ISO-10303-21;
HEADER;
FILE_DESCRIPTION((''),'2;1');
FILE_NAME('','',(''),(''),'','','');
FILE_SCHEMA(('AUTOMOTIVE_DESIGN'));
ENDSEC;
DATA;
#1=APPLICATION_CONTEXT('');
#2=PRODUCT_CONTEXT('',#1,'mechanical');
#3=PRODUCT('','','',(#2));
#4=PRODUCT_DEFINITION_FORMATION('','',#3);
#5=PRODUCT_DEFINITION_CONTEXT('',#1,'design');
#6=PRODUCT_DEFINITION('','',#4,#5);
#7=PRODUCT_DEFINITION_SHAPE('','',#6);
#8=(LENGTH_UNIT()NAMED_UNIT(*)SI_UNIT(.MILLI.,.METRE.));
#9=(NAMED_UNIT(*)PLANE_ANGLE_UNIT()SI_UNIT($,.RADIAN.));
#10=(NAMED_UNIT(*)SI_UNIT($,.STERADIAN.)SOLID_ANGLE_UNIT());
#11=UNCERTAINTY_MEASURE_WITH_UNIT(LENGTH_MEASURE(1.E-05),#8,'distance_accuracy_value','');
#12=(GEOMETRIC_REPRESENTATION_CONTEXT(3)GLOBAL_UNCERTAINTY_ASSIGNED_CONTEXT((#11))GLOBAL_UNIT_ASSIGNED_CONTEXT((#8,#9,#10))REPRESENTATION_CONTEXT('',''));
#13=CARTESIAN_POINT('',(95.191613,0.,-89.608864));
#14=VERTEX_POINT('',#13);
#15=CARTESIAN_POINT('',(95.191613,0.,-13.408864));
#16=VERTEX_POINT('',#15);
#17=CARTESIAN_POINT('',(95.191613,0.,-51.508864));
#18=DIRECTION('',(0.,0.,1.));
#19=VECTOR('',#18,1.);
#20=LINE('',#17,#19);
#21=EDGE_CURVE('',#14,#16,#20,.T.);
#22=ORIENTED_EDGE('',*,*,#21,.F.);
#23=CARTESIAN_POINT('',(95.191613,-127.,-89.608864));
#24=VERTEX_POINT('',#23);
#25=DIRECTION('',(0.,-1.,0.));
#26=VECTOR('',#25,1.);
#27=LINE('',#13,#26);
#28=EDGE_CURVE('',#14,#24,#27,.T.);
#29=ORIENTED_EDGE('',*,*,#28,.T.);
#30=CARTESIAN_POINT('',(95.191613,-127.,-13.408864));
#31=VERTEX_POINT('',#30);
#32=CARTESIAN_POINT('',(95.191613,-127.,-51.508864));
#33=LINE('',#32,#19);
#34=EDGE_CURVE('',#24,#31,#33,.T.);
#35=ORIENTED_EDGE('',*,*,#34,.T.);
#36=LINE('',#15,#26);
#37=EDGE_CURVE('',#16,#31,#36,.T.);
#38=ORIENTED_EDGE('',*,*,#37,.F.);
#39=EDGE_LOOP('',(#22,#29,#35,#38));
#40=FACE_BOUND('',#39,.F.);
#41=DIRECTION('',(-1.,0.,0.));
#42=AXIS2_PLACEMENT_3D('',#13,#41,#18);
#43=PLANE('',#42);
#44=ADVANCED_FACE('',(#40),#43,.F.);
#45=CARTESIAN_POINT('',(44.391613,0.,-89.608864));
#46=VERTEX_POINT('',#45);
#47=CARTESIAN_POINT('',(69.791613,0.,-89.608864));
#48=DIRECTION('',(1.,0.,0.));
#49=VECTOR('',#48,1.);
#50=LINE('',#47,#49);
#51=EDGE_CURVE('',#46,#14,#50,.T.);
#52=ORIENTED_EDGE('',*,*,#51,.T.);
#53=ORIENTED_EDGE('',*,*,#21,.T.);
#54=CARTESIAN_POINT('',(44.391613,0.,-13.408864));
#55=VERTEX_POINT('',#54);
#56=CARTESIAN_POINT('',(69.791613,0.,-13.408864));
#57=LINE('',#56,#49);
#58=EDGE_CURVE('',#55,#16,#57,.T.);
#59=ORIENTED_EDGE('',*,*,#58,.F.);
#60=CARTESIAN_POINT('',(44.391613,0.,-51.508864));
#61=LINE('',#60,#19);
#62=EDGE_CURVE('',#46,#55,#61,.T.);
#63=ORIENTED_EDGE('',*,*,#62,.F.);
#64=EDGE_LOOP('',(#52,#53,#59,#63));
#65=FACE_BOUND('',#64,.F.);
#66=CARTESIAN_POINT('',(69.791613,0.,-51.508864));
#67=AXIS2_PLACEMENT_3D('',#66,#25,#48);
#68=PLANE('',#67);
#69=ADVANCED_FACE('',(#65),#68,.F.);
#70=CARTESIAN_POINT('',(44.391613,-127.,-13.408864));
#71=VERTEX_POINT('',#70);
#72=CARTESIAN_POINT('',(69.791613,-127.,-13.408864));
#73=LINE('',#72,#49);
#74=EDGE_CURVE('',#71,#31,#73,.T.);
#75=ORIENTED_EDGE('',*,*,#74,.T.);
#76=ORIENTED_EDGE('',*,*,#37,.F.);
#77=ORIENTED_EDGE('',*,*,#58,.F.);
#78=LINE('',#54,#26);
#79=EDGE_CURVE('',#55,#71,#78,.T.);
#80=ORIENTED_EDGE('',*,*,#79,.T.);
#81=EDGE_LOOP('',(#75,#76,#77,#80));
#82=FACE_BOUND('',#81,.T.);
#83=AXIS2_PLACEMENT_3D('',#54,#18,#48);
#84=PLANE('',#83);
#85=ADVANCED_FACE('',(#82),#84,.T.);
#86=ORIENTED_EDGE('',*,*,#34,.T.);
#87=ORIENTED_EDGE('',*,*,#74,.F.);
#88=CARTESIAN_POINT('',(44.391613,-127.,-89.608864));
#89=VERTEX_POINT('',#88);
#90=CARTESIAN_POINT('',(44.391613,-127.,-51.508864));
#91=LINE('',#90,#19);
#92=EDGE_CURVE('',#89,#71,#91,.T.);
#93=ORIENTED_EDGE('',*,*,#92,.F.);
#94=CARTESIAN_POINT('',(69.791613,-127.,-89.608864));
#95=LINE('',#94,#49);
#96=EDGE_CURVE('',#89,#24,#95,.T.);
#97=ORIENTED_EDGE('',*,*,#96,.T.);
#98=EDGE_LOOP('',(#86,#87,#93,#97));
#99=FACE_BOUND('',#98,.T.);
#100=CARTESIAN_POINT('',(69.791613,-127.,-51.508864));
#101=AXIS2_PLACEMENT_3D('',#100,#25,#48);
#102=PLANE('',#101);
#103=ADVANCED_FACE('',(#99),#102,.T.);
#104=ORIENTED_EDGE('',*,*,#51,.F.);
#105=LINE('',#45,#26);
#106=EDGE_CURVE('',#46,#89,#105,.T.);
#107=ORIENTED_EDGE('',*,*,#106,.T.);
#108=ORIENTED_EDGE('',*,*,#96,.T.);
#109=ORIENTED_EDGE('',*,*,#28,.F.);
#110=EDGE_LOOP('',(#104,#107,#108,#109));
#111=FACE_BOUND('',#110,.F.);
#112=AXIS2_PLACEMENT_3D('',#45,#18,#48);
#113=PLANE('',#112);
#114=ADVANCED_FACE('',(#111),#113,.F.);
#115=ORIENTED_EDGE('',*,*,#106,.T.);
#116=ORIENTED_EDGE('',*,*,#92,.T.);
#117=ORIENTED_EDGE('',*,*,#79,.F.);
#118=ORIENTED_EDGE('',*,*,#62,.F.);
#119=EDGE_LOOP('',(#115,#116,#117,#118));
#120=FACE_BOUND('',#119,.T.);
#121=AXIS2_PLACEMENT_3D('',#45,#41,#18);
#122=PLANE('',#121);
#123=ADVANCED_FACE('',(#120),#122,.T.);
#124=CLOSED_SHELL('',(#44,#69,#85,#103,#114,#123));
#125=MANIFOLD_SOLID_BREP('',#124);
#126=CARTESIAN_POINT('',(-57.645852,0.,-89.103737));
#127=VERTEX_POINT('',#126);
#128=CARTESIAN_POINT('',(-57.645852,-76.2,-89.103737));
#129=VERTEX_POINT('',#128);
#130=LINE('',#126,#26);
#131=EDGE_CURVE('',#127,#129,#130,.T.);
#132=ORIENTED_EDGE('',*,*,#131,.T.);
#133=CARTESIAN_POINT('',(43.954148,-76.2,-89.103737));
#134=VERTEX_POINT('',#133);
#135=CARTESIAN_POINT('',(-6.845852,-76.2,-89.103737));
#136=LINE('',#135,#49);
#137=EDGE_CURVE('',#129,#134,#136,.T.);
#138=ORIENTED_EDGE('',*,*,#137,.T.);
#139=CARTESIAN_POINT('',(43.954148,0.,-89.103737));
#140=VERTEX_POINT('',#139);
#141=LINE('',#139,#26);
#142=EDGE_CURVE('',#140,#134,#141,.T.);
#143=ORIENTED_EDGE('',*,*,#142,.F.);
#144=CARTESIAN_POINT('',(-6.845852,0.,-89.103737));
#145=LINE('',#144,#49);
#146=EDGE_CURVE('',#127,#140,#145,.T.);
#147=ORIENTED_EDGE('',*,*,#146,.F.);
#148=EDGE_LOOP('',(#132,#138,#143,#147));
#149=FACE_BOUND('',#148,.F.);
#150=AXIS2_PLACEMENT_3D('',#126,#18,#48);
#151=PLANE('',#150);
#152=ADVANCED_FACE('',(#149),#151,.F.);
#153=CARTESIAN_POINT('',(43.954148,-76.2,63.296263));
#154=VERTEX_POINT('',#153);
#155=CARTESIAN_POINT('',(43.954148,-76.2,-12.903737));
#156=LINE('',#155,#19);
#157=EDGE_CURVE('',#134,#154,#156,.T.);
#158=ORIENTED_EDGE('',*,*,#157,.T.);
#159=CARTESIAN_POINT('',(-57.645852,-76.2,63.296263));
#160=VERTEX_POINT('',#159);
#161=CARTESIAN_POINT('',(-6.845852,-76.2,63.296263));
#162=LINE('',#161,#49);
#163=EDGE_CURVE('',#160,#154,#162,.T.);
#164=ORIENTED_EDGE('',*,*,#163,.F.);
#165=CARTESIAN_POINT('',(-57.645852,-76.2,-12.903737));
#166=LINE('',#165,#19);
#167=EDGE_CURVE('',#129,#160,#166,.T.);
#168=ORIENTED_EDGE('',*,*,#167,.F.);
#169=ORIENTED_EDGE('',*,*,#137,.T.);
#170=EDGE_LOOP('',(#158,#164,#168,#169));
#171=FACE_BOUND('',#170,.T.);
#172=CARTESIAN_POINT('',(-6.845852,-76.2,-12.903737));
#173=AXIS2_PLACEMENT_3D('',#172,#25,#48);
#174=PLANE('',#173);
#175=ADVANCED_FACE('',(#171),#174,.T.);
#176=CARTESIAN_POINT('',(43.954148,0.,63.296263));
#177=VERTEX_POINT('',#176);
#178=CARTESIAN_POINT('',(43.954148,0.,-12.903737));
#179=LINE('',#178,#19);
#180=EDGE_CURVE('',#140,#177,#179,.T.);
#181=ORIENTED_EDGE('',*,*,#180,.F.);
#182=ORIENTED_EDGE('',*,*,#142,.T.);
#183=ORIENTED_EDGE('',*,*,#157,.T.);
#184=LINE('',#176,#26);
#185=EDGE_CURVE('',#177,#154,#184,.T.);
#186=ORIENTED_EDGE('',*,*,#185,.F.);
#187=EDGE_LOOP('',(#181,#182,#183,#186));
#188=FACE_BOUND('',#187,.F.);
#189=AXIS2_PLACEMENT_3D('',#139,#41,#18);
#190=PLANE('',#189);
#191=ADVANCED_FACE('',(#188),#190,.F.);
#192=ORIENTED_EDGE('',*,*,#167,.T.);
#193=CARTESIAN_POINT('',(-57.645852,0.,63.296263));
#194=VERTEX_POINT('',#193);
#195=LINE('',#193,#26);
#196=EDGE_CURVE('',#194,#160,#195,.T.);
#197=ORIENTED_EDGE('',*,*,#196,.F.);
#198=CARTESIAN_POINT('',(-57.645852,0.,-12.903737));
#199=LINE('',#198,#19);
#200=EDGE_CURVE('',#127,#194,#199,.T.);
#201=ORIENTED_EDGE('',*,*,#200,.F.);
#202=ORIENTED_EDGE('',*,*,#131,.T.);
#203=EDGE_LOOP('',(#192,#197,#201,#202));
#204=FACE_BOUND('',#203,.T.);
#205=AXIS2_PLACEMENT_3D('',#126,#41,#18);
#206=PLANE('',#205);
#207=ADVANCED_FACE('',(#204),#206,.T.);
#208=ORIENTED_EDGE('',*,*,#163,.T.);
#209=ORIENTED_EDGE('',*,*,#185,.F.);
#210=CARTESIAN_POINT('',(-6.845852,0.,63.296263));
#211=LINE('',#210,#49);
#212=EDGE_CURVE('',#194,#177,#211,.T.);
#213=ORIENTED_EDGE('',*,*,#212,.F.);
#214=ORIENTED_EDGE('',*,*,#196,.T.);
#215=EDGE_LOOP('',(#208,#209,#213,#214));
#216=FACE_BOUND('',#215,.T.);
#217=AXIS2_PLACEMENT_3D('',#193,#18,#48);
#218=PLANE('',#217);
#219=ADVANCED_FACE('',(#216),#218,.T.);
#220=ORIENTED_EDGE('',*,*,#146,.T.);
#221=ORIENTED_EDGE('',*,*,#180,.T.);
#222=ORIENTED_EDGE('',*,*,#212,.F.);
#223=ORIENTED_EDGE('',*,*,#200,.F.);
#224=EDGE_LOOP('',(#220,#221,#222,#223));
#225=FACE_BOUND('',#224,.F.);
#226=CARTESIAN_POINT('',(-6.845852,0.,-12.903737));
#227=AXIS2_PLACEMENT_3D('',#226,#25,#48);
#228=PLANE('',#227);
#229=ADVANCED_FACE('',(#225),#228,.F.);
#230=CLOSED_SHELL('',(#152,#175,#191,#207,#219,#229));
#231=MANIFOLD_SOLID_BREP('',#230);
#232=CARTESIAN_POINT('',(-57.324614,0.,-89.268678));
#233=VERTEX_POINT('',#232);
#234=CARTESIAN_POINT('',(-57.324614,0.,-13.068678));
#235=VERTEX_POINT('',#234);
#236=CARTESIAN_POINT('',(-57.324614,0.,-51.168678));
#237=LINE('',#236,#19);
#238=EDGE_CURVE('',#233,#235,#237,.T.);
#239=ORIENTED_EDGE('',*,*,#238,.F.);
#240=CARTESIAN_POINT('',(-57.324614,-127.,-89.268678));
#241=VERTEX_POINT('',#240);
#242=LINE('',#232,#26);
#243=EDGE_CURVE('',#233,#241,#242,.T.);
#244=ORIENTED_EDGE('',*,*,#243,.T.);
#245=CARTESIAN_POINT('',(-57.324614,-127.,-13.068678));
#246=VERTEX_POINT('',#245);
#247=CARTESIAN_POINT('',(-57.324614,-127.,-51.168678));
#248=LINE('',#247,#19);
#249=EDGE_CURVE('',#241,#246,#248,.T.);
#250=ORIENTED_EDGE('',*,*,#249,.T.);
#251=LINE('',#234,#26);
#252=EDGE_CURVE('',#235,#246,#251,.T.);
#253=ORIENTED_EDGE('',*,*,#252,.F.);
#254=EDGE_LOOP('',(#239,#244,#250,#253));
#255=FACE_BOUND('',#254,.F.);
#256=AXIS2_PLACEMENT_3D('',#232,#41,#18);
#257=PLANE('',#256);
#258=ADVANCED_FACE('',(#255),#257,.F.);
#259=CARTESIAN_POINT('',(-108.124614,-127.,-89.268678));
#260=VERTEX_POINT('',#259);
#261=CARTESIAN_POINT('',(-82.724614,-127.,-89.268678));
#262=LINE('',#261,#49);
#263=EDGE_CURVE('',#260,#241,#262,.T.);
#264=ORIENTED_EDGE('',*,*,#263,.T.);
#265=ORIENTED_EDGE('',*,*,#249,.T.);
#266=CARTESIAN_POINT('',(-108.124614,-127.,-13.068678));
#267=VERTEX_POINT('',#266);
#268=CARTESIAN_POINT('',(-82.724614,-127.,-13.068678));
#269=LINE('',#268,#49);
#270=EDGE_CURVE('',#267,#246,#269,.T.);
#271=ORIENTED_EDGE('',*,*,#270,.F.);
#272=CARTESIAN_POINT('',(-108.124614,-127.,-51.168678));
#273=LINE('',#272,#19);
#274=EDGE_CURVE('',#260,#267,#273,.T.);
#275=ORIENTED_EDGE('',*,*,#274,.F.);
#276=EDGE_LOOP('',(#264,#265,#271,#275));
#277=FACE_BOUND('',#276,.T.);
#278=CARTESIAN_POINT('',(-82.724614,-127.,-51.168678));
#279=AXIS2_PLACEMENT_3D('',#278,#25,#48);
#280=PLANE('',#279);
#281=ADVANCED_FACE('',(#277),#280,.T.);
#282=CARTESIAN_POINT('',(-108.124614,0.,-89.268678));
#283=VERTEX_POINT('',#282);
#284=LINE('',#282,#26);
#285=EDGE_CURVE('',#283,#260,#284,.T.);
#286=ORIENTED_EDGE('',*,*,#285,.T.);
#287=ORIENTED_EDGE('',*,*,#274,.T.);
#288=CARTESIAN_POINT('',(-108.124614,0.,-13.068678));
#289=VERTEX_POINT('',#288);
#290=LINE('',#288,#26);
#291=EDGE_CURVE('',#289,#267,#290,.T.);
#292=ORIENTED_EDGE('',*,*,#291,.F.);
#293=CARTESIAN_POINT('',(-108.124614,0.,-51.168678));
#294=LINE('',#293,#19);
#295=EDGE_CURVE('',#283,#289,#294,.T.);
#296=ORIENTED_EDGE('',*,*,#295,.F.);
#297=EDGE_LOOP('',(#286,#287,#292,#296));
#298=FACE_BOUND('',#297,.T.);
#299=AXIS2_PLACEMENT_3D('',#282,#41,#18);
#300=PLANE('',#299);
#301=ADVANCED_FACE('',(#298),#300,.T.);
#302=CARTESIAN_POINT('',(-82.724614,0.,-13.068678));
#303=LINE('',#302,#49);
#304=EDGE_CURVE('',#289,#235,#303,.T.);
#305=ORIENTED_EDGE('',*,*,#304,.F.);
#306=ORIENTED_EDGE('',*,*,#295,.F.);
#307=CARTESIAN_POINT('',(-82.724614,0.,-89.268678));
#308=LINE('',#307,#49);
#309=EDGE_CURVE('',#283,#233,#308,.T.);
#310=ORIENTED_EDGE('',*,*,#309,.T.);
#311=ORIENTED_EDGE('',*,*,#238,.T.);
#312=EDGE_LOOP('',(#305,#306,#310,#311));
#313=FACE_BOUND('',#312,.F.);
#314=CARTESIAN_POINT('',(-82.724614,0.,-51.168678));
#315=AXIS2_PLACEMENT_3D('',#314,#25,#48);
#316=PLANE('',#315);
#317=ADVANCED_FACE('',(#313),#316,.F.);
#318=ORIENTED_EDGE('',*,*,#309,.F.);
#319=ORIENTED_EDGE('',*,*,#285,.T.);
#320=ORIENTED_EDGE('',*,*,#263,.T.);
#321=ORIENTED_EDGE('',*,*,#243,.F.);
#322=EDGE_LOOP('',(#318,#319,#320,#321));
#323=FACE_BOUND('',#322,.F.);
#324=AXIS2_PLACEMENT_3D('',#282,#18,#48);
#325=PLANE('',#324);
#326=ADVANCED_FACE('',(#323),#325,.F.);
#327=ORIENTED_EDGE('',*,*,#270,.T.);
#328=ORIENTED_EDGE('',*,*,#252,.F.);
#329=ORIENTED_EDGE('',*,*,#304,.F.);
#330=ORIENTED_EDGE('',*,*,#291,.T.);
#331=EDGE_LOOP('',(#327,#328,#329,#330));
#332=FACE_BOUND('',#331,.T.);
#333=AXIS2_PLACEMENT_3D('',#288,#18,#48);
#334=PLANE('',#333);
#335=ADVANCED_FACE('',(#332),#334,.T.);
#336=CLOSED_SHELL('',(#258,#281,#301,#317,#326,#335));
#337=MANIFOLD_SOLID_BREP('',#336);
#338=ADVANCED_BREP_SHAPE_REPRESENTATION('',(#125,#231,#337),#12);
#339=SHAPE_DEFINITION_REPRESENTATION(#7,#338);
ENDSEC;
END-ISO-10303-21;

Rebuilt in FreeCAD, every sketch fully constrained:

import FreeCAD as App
import Part
import Sketcher
from FreeCAD import Vector
Q = App.Units.Quantity

doc = App.newDocument("Part")
body = doc.addObject("PartDesign::Body", "Body")
body.AllowCompound = True

sketch1 = body.newObject("Sketcher::SketchObject", "Sketch")
sketch1.AttachmentSupport = (doc.getObject("XZ_Plane"), [""])
sketch1.MapMode = "FlatFace"
sketch1.addGeometry([
    Part.LineSegment(Vector(-108, -13, 0), Vector(-108, -89, 0)),
    Part.LineSegment(Vector(-108, -89, 0), Vector(-57, -89, 0)),
    Part.LineSegment(Vector(-57, -89, 0), Vector(-57, -13, 0)),
    Part.LineSegment(Vector(-57, -13, 0), Vector(-108, -13, 0)),
], False)
sketch1.addConstraint([
    Sketcher.Constraint("Coincident", 0, 2, 1, 1),
    Sketcher.Constraint("Coincident", 1, 2, 2, 1),
    Sketcher.Constraint("Coincident", 2, 2, 3, 1),
    Sketcher.Constraint("Coincident", 3, 2, 0, 1),
    Sketcher.Constraint("Vertical", 0),
    Sketcher.Constraint("Horizontal", 1),
    Sketcher.Constraint("Vertical", 2),
    Sketcher.Constraint("Horizontal", 3),
    Sketcher.Constraint("DistanceX", 1, 1, 1, 2, Q("2 in")),
    Sketcher.Constraint("DistanceY", 0, 2, 0, 1, Q("3 in")),
    Sketcher.Constraint("DistanceX", 0, 2, -1, 1, 108.124614),
    Sketcher.Constraint("DistanceY", 0, 2, -1, 1, 89.268678),
])
pad1 = body.newObject("PartDesign::Pad", "Pad")
pad1.Profile = sketch1
pad1.Length = Q("5 in")

sketch2 = body.newObject("Sketcher::SketchObject", "Sketch001")
sketch2.AttachmentSupport = (doc.getObject("XZ_Plane"), [""])
sketch2.MapMode = "FlatFace"
sketch2.addGeometry([
    Part.LineSegment(Vector(-108, -13, 0), Vector(-108, -89, 0)),
    Part.LineSegment(Vector(-108, -89, 0), Vector(-57, -89, 0)),
    Part.LineSegment(Vector(-57, -89, 0), Vector(-57, -13, 0)),
    Part.LineSegment(Vector(-57, -13, 0), Vector(-108, -13, 0)),
    Part.LineSegment(Vector(44, -13, 0), Vector(44, -90, 0)),
    Part.LineSegment(Vector(44, -90, 0), Vector(95, -90, 0)),
    Part.LineSegment(Vector(95, -90, 0), Vector(95, -13, 0)),
    Part.LineSegment(Vector(95, -13, 0), Vector(44, -13, 0)),
], False)
sketch2.addConstraint([
    Sketcher.Constraint("Coincident", 0, 2, 1, 1),
    Sketcher.Constraint("Coincident", 1, 2, 2, 1),
    Sketcher.Constraint("Coincident", 2, 2, 3, 1),
    Sketcher.Constraint("Coincident", 3, 2, 0, 1),
    Sketcher.Constraint("Coincident", 4, 2, 5, 1),
    Sketcher.Constraint("Coincident", 5, 2, 6, 1),
    Sketcher.Constraint("Coincident", 6, 2, 7, 1),
    Sketcher.Constraint("Coincident", 7, 2, 4, 1),
    Sketcher.Constraint("Vertical", 0),
    Sketcher.Constraint("Horizontal", 1),
    Sketcher.Constraint("Vertical", 2),
    Sketcher.Constraint("Horizontal", 3),
    Sketcher.Constraint("Vertical", 4),
    Sketcher.Constraint("Horizontal", 5),
    Sketcher.Constraint("Vertical", 6),
    Sketcher.Constraint("Horizontal", 7),
    Sketcher.Constraint("Equal", 3, 5),
    Sketcher.Constraint("Equal", 2, 4),
    Sketcher.Constraint("DistanceX", 1, 1, 1, 2, Q("2 in")),
    Sketcher.Constraint("DistanceY", 0, 2, 0, 1, Q("3 in")),
    Sketcher.Constraint("DistanceX", 0, 2, -1, 1, 108.124614),
    Sketcher.Constraint("DistanceY", 0, 2, -1, 1, 89.268678),
    Sketcher.Constraint("DistanceX", -1, 1, 4, 2, 44.391613),
    Sketcher.Constraint("DistanceY", 4, 2, -1, 1, 89.608864),
])
pad2 = body.newObject("PartDesign::Pad", "Pad001")
pad2.Profile = sketch2
pad2.Length = Q("5 in")
body2 = doc.addObject("PartDesign::Body", "Body001")

sketch3 = body2.newObject("Sketcher::SketchObject", "Sketch002")
sketch3.AttachmentSupport = (doc.getObject("XZ_Plane001"), [""])
sketch3.MapMode = "FlatFace"
sketch3.addGeometry([
    Part.LineSegment(Vector(-58, 63, 0), Vector(-58, -89, 0)),
    Part.LineSegment(Vector(-58, -89, 0), Vector(44, -89, 0)),
    Part.LineSegment(Vector(44, -89, 0), Vector(44, 63, 0)),
    Part.LineSegment(Vector(44, 63, 0), Vector(-58, 63, 0)),
], False)
sketch3.addConstraint([
    Sketcher.Constraint("Coincident", 0, 2, 1, 1),
    Sketcher.Constraint("Coincident", 1, 2, 2, 1),
    Sketcher.Constraint("Coincident", 2, 2, 3, 1),
    Sketcher.Constraint("Coincident", 3, 2, 0, 1),
    Sketcher.Constraint("Vertical", 0),
    Sketcher.Constraint("Horizontal", 1),
    Sketcher.Constraint("Vertical", 2),
    Sketcher.Constraint("Horizontal", 3),
    Sketcher.Constraint("DistanceX", 1, 1, 1, 2, Q("4 in")),
    Sketcher.Constraint("DistanceY", 0, 2, 0, 1, Q("6 in")),
    Sketcher.Constraint("DistanceX", 0, 2, -1, 1, 57.645852),
    Sketcher.Constraint("DistanceY", 0, 2, -1, 1, 89.103737),
])
pad3 = body2.newObject("PartDesign::Pad", "Pad002")
pad3.Profile = sketch3
pad3.Length = Q("3 in")

doc.recompute()
